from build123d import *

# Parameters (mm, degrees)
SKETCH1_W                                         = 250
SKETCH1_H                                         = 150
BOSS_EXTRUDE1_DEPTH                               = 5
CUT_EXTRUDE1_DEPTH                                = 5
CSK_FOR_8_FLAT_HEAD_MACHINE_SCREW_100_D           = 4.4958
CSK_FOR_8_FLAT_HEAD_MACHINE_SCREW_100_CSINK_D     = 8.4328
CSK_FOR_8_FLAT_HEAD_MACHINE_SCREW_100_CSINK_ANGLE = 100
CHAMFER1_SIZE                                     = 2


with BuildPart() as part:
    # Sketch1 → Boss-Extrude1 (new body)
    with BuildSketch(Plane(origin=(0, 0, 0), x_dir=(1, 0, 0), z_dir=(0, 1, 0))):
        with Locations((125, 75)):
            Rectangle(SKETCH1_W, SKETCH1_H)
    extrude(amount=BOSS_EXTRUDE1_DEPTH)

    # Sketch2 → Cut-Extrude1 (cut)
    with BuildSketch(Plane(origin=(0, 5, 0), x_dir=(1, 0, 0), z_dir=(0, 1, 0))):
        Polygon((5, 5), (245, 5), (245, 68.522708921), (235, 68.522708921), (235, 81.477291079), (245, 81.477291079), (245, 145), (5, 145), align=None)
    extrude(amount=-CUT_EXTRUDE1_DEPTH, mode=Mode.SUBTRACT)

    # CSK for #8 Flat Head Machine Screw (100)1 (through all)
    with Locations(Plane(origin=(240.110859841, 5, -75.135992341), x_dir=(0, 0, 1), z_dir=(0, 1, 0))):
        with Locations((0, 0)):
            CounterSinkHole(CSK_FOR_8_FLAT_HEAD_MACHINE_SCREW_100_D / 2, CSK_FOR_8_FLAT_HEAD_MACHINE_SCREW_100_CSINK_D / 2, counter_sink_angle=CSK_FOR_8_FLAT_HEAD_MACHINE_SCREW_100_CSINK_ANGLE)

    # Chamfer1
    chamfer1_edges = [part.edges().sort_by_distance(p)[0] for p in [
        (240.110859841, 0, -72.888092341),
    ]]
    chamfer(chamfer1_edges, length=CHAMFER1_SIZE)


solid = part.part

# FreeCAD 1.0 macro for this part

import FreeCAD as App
import Part
import Sketcher

V = App.Vector


def edges_at(feature, points):
    """Names of the edges that pass closest to the given points."""
    edges = feature.Shape.Edges
    near = lambda p: min(range(len(edges)), key=lambda i: edges[i].distToShape(Part.Vertex(*p))[0])
    return sorted({f"Edge{near(p) + 1}" for p in points})

doc = App.newDocument("Part")
body = doc.addObject("PartDesign::Body", "Body")

# Sketch on XZ plane
sketch1 = body.newObject("Sketcher::SketchObject", "Sketch")
sketch1.AttachmentSupport = (doc.getObject("XZ_Plane"), [""])
sketch1.MapMode = "FlatFace"
sketch1.addGeometry([
    Part.LineSegment(V(0, -150, 0), V(0, 0, 0)),
    Part.LineSegment(V(0, 0, 0), V(250, 0, 0)),
    Part.LineSegment(V(250, 0, 0), V(250, -150, 0)),
    Part.LineSegment(V(250, -150, 0), V(0, -150, 0)),
], False)
sketch1.addConstraint([
    Sketcher.Constraint("Coincident", 0, 2, 1, 1),
    Sketcher.Constraint("Coincident", 1, 2, 2, 1),
    Sketcher.Constraint("Coincident", 2, 2, 3, 1),
    Sketcher.Constraint("Coincident", 3, 2, 0, 1),
    Sketcher.Constraint("Vertical", 0),
    Sketcher.Constraint("Horizontal", 1),
    Sketcher.Constraint("Vertical", 2),
    Sketcher.Constraint("Horizontal", 3),
    Sketcher.Constraint("Coincident", 0, 2, -1, 1),
    Sketcher.Constraint("DistanceX", 1, 1, 1, 2, 250.0),
    Sketcher.Constraint("DistanceY", 0, 1, 0, 2, 150.0),
])
pad1 = body.newObject("PartDesign::Pad", "Pad")
pad1.Profile = sketch1
pad1.Length = 5
pad1.Reversed = True

# Sketch on XZ plane
sketch2 = body.newObject("Sketcher::SketchObject", "Sketch001")
sketch2.AttachmentSupport = (doc.getObject("XZ_Plane"), [""])
sketch2.MapMode = "FlatFace"
sketch2.AttachmentOffset = App.Placement(V(0, 0, -5), App.Rotation())
sketch2.addGeometry([
    Part.LineSegment(V(5, -5, 0), V(245, -5, 0)),  # 0
    Part.LineSegment(V(245, -5, 0), V(245, -69, 0)),  # 1
    Part.LineSegment(V(245, -69, 0), V(235, -69, 0)),  # 2
    Part.LineSegment(V(235, -69, 0), V(235, -81, 0)),  # 3
    Part.LineSegment(V(235, -81, 0), V(245, -81, 0)),  # 4
    Part.LineSegment(V(245, -81, 0), V(245, -145, 0)),  # 5
    Part.LineSegment(V(245, -145, 0), V(5, -145, 0)),  # 6
    Part.LineSegment(V(5, -145, 0), V(5, -5, 0)),  # 7
], False)
sketch2.addConstraint([
    Sketcher.Constraint("Coincident", 0, 2, 1, 1),
    Sketcher.Constraint("Coincident", 1, 2, 2, 1),
    Sketcher.Constraint("Coincident", 2, 2, 3, 1),
    Sketcher.Constraint("Coincident", 3, 2, 4, 1),
    Sketcher.Constraint("Coincident", 4, 2, 5, 1),
    Sketcher.Constraint("Coincident", 5, 2, 6, 1),
    Sketcher.Constraint("Coincident", 6, 2, 7, 1),
    Sketcher.Constraint("Coincident", 7, 2, 0, 1),
    Sketcher.Constraint("Horizontal", 0),
    Sketcher.Constraint("Vertical", 1),
    Sketcher.Constraint("Horizontal", 2),
    Sketcher.Constraint("Vertical", 3),
    Sketcher.Constraint("Horizontal", 4),
    Sketcher.Constraint("Vertical", 5),
    Sketcher.Constraint("Horizontal", 6),
    Sketcher.Constraint("Vertical", 7),
    Sketcher.Constraint("Vertical", 1, 2, 4, 2),
    Sketcher.Constraint("Equal", 1, 5),
    Sketcher.Constraint("DistanceX", 0, 1, 0, 2, 240.0),
    Sketcher.Constraint("DistanceX", 2, 2, 2, 1, 10.0),
    Sketcher.Constraint("DistanceY", 7, 1, 7, 2, 140.0),
    Sketcher.Constraint("DistanceX", -1, 1, 0, 2, 245.0),
    Sketcher.Constraint("DistanceY", 0, 2, -1, 1, 5.0),
    Sketcher.Constraint("DistanceY", 1, 2, 1, 1, 63.522709),
])
pocket1 = body.newObject("PartDesign::Pocket", "Pocket")
pocket1.Profile = sketch2
pocket1.Length = 5
pocket1.Reversed = True

# Sketch on XZ plane
sketch3 = body.newObject("Sketcher::SketchObject", "Sketch002")
sketch3.AttachmentSupport = (doc.getObject("XZ_Plane"), [""])
sketch3.MapMode = "FlatFace"
sketch3.AttachmentOffset = App.Placement(V(0, 0, -5), App.Rotation())
sketch3.addGeometry(Part.Circle(V(240.1, -75.1, 0), V(0, 0, 1), 2.2), False)
sketch3.addConstraint([
    Sketcher.Constraint("Diameter", 0, 4.4958),
    Sketcher.Constraint("DistanceX", -1, 1, 0, 3, 240.11086),
    Sketcher.Constraint("DistanceY", 0, 3, -1, 1, 75.135992),
])
doc.recompute()
hole = body.newObject("PartDesign::Hole", "Hole")
hole.Profile = sketch3
hole.ThreadType = "None"
hole.Diameter = 4.4958
hole.DepthType = "ThroughAll"
hole.HoleCutType = "Countersink"
hole.HoleCutDiameter = 8.4328
hole.HoleCutCountersinkAngle = 100
hole.Reversed = True
doc.recompute()

chamfer = body.newObject("PartDesign::Chamfer", "Chamfer")
chamfer.Base = (hole, edges_at(hole, [(240.111, 0, -72.888)]))
chamfer.Size = 2

doc.recompute()
